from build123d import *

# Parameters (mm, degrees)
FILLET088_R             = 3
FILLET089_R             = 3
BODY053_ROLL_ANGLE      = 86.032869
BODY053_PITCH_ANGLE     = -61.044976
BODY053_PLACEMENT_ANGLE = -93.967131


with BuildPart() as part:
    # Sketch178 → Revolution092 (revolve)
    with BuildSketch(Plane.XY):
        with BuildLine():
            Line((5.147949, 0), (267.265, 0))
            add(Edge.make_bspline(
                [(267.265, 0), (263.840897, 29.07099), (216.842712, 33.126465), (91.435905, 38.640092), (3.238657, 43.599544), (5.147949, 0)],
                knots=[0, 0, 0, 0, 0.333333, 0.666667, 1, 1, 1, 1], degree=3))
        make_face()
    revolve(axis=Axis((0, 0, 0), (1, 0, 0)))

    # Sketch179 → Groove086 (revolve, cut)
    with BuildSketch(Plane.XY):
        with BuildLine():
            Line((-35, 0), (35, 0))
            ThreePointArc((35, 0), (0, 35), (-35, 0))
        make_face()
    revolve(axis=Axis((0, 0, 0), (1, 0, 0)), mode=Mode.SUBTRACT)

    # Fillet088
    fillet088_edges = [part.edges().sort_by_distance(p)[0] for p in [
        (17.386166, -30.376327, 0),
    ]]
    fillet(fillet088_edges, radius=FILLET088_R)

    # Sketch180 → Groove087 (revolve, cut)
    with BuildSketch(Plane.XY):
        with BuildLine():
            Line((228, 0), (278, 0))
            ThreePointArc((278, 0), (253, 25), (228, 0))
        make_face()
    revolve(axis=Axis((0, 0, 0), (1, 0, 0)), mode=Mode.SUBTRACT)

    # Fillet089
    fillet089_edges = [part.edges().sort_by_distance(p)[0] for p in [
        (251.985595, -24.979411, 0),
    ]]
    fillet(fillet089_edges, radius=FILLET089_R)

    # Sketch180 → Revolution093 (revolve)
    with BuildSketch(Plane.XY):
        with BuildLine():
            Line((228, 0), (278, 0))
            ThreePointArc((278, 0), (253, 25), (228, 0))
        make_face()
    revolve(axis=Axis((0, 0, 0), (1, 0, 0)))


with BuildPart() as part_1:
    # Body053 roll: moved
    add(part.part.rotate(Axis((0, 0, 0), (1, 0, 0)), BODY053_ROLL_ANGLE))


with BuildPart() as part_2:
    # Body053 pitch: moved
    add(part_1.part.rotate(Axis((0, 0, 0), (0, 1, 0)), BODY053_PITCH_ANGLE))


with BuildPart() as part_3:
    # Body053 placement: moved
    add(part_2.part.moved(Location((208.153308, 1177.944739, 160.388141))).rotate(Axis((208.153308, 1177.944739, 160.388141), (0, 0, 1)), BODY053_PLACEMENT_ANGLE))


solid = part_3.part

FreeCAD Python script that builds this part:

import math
import FreeCAD as App
import Part
import Sketcher
Q = App.Units.Quantity


def edges_at(feature, points):
    """Names of the edges that pass closest to the given points."""
    edges = feature.Shape.Edges
    near = lambda p: min(range(len(edges)), key=lambda i: edges[i].distToShape(Part.Vertex(*p))[0])
    return sorted({f"Edge{near(p) + 1}" for p in points})

doc = App.newDocument("Part")
params = doc.addObject("Spreadsheet::Sheet", "Params")
for row, (alias, value) in enumerate([
    ("revolution_angle", "360 deg"),
    ("sketch2_radius", "35 mm"),
    ("groove_angle", "360 deg"),
    ("fillet_radius", "3 mm"),
    ("sketch3_radius", "25 mm"),
    ("groove2_angle", "360 deg"),
    ("fillet2_radius", "3 mm"),
    ("sketch4_radius", "25 mm"),
    ("revolution2_angle", "360 deg"),
], start=1):
    params.set(f"A{row}", alias)
    params.set(f"B{row}", "=" + value)
    params.setAlias(f"B{row}", alias)

body = doc.addObject("PartDesign::Body", "Body")

# Sketch on XY plane
sketch1 = body.newObject("Sketcher::SketchObject", "Sketch")
sketch1.AttachmentSupport = (doc.getObject("XY_Plane"), [""])
sketch1.MapMode = "FlatFace"
sketch1.addGeometry(Part.LineSegment(App.Vector(5.147949, 0, 0), App.Vector(267.265, 0, 0)), False)
sketch1.addGeometry(Part.BSplineCurve([App.Vector(267.265, 0, 0), App.Vector(263.840897, 29.07099, 0), App.Vector(216.842712, 33.126465, 0), App.Vector(91.435905, 38.640092, 0), App.Vector(3.238657, 43.599544, 0), App.Vector(5.147949, 0, 0)], [4, 1, 1, 4], [0, 0.333333, 0.666667, 1], False, 3, [1, 1, 1, 1, 1, 1], False), False)
sketch1.addConstraint(Sketcher.Constraint("Block", 1))
sketch1.addConstraint(Sketcher.Constraint("Coincident", 0, 1, 1, 2))
sketch1.addConstraint(Sketcher.Constraint("Coincident", 1, 1, 0, 2))
revolution = body.newObject("PartDesign::Revolution", "Revolution")
revolution.Profile = sketch1
revolution.ReferenceAxis = (sketch1, ["H_Axis"])
revolution.setExpression("Angle", "Params.revolution_angle")

# Sketch on XY plane
sketch2 = body.newObject("Sketcher::SketchObject", "Sketch001")
sketch2.AttachmentSupport = (doc.getObject("XY_Plane"), [""])
sketch2.MapMode = "FlatFace"
sketch2.addGeometry(Part.LineSegment(App.Vector(-35, 0, 0), App.Vector(35, 0, 0)), False)
sketch2.addGeometry(Part.ArcOfCircle(Part.Circle(App.Vector(0, 0, 0), App.Vector(0, 0, 1), 35), math.radians(0), math.radians(180)), False)
sketch2.addConstraint(Sketcher.Constraint("Coincident", 0, 1, 1, 2))
sketch2.addConstraint(Sketcher.Constraint("Coincident", 1, 1, 0, 2))
sketch2.addConstraint(Sketcher.Constraint("Horizontal", 0))
sketch2.addConstraint(Sketcher.Constraint("Coincident", 1, 3, -1, 1))
sketch2.addConstraint(Sketcher.Constraint("PointOnObject", 0, 1, -1))
sketch2.addConstraint(Sketcher.Constraint("Radius", 1, Q("35 mm")))
sketch2.setExpression("Constraints[5]", "Params.sketch2_radius")
groove = body.newObject("PartDesign::Groove", "Groove")
groove.Profile = sketch2
groove.ReferenceAxis = (sketch2, ["H_Axis"])
groove.setExpression("Angle", "Params.groove_angle")
doc.recompute()

fillet = body.newObject("PartDesign::Fillet", "Fillet")
fillet.Base = (groove, edges_at(groove, [(17.386, -30.376, 0)]))
fillet.setExpression("Radius", "Params.fillet_radius")

# Sketch on XY plane
sketch3 = body.newObject("Sketcher::SketchObject", "Sketch002")
sketch3.AttachmentSupport = (doc.getObject("XY_Plane"), [""])
sketch3.MapMode = "FlatFace"
sketch3.addGeometry(Part.LineSegment(App.Vector(228, 0, 0), App.Vector(278, 0, 0)), False)
sketch3.addGeometry(Part.ArcOfCircle(Part.Circle(App.Vector(253, 0, 0), App.Vector(0, 0, 1), 25), math.radians(0), math.radians(180)), False)
sketch3.addConstraint(Sketcher.Constraint("Coincident", 0, 1, 1, 2))
sketch3.addConstraint(Sketcher.Constraint("Coincident", 1, 1, 0, 2))
sketch3.addConstraint(Sketcher.Constraint("Horizontal", 0))
sketch3.addConstraint(Sketcher.Constraint("PointOnObject", 1, 3, -1))
sketch3.addConstraint(Sketcher.Constraint("PointOnObject", 0, 1, -1))
sketch3.addConstraint(Sketcher.Constraint("Radius", 1, Q("25 mm")))
sketch3.addConstraint(Sketcher.Constraint("DistanceX", -1, 1, 1, 3, Q("253 mm")))
sketch3.setExpression("Constraints[5]", "Params.sketch3_radius")
groove2 = body.newObject("PartDesign::Groove", "Groove001")
groove2.Profile = sketch3
groove2.ReferenceAxis = (sketch3, ["H_Axis"])
groove2.setExpression("Angle", "Params.groove2_angle")
doc.recompute()

fillet2 = body.newObject("PartDesign::Fillet", "Fillet001")
fillet2.Base = (groove2, edges_at(groove2, [(251.986, -24.979, 0)]))
fillet2.setExpression("Radius", "Params.fillet2_radius")

# Sketch on XY plane
sketch4 = body.newObject("Sketcher::SketchObject", "Sketch003")
sketch4.AttachmentSupport = (doc.getObject("XY_Plane"), [""])
sketch4.MapMode = "FlatFace"
sketch4.addGeometry(Part.LineSegment(App.Vector(228, 0, 0), App.Vector(278, 0, 0)), False)
sketch4.addGeometry(Part.ArcOfCircle(Part.Circle(App.Vector(253, 0, 0), App.Vector(0, 0, 1), 25), math.radians(0), math.radians(180)), False)
sketch4.addConstraint(Sketcher.Constraint("Coincident", 0, 1, 1, 2))
sketch4.addConstraint(Sketcher.Constraint("Coincident", 1, 1, 0, 2))
sketch4.addConstraint(Sketcher.Constraint("Horizontal", 0))
sketch4.addConstraint(Sketcher.Constraint("PointOnObject", 1, 3, -1))
sketch4.addConstraint(Sketcher.Constraint("PointOnObject", 0, 1, -1))
sketch4.addConstraint(Sketcher.Constraint("Radius", 1, Q("25 mm")))
sketch4.addConstraint(Sketcher.Constraint("DistanceX", -1, 1, 1, 3, Q("253 mm")))
sketch4.setExpression("Constraints[5]", "Params.sketch4_radius")
revolution2 = body.newObject("PartDesign::Revolution", "Revolution001")
revolution2.Profile = sketch4
revolution2.ReferenceAxis = (sketch4, ["H_Axis"])
revolution2.setExpression("Angle", "Params.revolution2_angle")
body2 = doc.addObject("PartDesign::Body", "Body001")
doc.recompute()

body.Placement = App.Placement(App.Vector(0, 0, 0), App.Rotation(App.Vector(1, 0, 0), 86.032869))
boolean = body2.newObject("PartDesign::Boolean", "Boolean")
boolean.Type = "Fuse"
boolean.addObjects([body])
body3 = doc.addObject("PartDesign::Body", "Body002")
doc.recompute()

body2.Placement = App.Placement(App.Vector(0, 0, 0), App.Rotation(App.Vector(0, 1, 0), 298.955024))
boolean2 = body3.newObject("PartDesign::Boolean", "Boolean001")
boolean2.Type = "Fuse"
boolean2.addObjects([body2])
body4 = doc.addObject("PartDesign::Body", "Body003")
doc.recompute()

body3.Placement = App.Placement(App.Vector(208.153308, 1177.944739, 160.388141), App.Rotation(App.Vector(0, 0, 1), 266.032869))
boolean3 = body4.newObject("PartDesign::Boolean", "Boolean002")
boolean3.Type = "Fuse"
boolean3.addObjects([body3])

doc.recompute()
